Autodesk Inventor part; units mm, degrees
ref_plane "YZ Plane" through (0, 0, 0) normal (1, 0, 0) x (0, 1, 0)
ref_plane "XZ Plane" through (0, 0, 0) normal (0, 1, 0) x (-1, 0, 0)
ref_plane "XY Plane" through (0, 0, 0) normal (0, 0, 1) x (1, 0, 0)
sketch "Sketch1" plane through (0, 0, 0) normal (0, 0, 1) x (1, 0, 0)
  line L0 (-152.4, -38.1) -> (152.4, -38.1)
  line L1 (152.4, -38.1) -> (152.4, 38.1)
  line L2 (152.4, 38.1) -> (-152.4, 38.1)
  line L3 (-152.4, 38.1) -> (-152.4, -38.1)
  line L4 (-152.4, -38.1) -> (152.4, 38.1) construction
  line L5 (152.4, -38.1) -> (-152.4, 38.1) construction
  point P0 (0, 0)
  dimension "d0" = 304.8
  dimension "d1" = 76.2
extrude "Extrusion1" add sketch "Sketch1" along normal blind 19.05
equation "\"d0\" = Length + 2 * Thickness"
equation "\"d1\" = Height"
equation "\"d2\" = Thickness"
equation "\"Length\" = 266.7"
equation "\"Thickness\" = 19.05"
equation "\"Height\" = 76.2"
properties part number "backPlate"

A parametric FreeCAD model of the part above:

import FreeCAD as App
import Part
import Sketcher

V = App.Vector
Q = App.Units.Quantity


def add_polygon(sketch, points):
    """Adds a closed chain of lines whose ends are joined by coincident constraints."""
    first, n = sketch.GeometryCount, len(points)
    for a, b in zip(points, points[1:] + points[:1]):
        sketch.addGeometry(Part.LineSegment(App.Vector(*a, 0), App.Vector(*b, 0)), False)
    for i in range(n):
        sketch.addConstraint(Sketcher.Constraint("Coincident", first + i, 2, first + (i + 1) % n, 1))

doc = App.newDocument("Part")
params = doc.addObject("Spreadsheet::Sheet", "Params")
for row, (alias, value) in enumerate([
    ("sketch1_width", "12 in"),
    ("sketch1_height", "3 in"),
    ("pad1_length", "0.75 in"),
], start=1):
    params.set(f"A{row}", alias)
    params.set(f"B{row}", "=" + value)
    params.setAlias(f"B{row}", alias)

body = doc.addObject("PartDesign::Body", "Body")

# Sketch on XY plane
sketch1 = body.newObject("Sketcher::SketchObject", "Sketch")
sketch1.AttachmentSupport = (doc.getObject("XY_Plane"), [""])
sketch1.MapMode = "FlatFace"
add_polygon(sketch1, [(-152, 38), (-152, -38), (152, -38), (152, 38)])  # lines 0-3
sketch1.addConstraint([
    Sketcher.Constraint("Vertical", 0),
    Sketcher.Constraint("Horizontal", 1),
    Sketcher.Constraint("Vertical", 2),
    Sketcher.Constraint("Horizontal", 3),
    Sketcher.Constraint("Symmetric", 0, 2, 2, 2, -1, 1),
    Sketcher.Constraint("DistanceX", 1, 1, 1, 2, Q("12 in")),
    Sketcher.Constraint("DistanceY", 0, 2, 0, 1, Q("3 in")),
])
sketch1.setExpression("Constraints[9]", "Params.sketch1_width")
sketch1.setExpression("Constraints[10]", "Params.sketch1_height")
pad1 = body.newObject("PartDesign::Pad", "Pad")
pad1.Profile = sketch1
pad1.setExpression("Length", "Params.pad1_length")

doc.recompute()
